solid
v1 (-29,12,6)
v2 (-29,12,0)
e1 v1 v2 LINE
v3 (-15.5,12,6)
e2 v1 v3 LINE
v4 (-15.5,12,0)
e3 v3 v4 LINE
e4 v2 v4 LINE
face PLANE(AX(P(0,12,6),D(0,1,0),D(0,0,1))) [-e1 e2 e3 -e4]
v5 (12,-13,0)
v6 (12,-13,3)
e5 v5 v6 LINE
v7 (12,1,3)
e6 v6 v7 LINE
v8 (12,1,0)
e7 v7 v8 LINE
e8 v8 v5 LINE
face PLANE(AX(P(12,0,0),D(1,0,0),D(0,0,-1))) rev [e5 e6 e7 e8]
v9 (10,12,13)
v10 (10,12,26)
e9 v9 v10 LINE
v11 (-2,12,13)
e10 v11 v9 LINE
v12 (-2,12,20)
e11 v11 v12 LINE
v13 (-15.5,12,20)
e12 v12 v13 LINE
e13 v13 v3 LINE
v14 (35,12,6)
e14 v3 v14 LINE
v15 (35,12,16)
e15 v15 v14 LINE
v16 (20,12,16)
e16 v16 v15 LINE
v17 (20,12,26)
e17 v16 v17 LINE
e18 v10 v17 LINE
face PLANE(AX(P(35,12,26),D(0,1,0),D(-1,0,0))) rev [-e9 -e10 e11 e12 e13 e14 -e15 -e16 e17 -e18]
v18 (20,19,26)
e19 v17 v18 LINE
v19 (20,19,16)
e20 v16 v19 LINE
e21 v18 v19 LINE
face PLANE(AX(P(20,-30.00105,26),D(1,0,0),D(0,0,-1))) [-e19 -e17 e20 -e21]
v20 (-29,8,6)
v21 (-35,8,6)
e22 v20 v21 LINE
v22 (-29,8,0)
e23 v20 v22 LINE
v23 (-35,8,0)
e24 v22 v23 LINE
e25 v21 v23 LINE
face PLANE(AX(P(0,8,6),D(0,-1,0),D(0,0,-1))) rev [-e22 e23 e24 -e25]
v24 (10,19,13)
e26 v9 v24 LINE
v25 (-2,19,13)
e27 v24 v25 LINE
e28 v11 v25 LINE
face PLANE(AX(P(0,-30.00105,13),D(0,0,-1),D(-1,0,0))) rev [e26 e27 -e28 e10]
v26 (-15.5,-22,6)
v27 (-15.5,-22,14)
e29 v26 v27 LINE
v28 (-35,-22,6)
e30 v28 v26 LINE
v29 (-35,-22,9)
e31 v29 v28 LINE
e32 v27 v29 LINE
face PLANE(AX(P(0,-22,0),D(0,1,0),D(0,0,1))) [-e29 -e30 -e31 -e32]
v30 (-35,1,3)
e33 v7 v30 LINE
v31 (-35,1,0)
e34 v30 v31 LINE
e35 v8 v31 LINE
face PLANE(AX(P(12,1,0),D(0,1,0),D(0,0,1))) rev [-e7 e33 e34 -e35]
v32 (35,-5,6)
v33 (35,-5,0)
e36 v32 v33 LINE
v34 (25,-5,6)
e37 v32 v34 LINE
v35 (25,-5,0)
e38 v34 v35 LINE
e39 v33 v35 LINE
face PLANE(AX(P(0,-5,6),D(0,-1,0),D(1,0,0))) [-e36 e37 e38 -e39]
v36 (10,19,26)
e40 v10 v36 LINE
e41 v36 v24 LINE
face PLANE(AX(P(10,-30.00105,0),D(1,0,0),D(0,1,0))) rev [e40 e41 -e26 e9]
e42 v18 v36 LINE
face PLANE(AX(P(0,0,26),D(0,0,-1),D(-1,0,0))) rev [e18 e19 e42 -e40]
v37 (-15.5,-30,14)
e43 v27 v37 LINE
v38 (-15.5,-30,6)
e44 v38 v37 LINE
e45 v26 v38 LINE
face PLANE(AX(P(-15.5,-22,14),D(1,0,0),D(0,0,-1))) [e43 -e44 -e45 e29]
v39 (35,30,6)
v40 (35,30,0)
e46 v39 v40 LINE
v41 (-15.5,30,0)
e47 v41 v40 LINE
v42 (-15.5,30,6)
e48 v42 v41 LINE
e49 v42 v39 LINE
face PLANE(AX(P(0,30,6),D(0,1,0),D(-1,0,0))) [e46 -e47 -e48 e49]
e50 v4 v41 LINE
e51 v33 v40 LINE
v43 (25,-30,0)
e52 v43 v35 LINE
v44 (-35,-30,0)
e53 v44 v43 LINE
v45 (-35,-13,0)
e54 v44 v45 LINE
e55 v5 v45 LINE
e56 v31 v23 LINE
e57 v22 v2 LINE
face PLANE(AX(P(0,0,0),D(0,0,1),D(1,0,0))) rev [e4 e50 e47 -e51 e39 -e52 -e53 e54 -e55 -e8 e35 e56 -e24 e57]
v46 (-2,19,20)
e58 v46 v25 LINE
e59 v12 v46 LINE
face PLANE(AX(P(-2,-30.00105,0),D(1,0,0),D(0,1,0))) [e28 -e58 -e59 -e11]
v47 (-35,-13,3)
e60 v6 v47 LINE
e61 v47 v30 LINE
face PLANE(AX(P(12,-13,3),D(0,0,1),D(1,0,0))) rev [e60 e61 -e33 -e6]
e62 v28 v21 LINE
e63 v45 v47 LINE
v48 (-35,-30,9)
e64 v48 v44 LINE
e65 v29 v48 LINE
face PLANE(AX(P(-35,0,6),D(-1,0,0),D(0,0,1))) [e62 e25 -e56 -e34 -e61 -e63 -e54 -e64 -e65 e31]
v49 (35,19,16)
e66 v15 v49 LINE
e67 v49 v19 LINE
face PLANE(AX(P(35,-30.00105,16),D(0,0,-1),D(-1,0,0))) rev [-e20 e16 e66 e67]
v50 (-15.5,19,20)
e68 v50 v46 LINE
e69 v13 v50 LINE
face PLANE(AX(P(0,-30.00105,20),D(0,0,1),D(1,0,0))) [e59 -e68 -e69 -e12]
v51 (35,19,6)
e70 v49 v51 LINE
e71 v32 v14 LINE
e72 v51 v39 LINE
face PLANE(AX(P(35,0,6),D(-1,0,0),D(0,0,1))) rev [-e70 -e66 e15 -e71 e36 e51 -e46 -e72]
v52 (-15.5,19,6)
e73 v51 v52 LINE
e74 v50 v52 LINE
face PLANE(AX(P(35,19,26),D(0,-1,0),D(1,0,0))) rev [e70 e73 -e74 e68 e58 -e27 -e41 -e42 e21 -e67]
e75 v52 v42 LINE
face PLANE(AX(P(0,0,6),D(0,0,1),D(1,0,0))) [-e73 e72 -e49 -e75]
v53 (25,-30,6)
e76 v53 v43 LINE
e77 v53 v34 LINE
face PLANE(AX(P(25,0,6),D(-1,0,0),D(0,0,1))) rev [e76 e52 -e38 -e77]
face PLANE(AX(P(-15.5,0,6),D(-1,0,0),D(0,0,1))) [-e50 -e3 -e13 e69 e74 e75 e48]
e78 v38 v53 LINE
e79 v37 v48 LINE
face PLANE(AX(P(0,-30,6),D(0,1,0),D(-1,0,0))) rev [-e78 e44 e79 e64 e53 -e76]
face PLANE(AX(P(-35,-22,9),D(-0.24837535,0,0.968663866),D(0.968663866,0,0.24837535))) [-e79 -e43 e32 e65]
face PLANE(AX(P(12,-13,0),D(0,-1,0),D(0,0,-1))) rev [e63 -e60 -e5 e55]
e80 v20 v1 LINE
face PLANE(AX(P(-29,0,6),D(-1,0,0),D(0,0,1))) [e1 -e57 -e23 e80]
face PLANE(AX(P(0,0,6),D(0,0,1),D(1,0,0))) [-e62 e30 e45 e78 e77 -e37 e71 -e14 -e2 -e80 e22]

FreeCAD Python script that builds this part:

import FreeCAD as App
import Part
import Sketcher
from FreeCAD import Vector


def add_polygon(sketch, points):
    """Adds a closed chain of lines whose ends are joined by coincident constraints."""
    first, n = sketch.GeometryCount, len(points)
    for a, b in zip(points, points[1:] + points[:1]):
        sketch.addGeometry(Part.LineSegment(App.Vector(*a, 0), App.Vector(*b, 0)), False)
    for i in range(n):
        sketch.addConstraint(Sketcher.Constraint("Coincident", first + i, 2, first + (i + 1) % n, 1))

doc = App.newDocument("Part")
body = doc.addObject("PartDesign::Body", "Body")

# Sketch on XY plane
sketch1 = body.newObject("Sketcher::SketchObject", "Sketch")
sketch1.AttachmentSupport = (doc.getObject("XY_Plane"), [""])
sketch1.MapMode = "FlatFace"
add_polygon(sketch1, [(-35, 8), (-35, -30), (25, -30), (25, -5), (35, -5), (35, 30), (-15.5, 30), (-15.5, 12), (-29, 12), (-29, 8)])  # lines 0-9
sketch1.addConstraint([
    Sketcher.Constraint("Vertical", 0),
    Sketcher.Constraint("Horizontal", 1),
    Sketcher.Constraint("Vertical", 2),
    Sketcher.Constraint("Horizontal", 3),
    Sketcher.Constraint("Vertical", 4),
    Sketcher.Constraint("Horizontal", 5),
    Sketcher.Constraint("Vertical", 6),
    Sketcher.Constraint("Horizontal", 7),
    Sketcher.Constraint("Vertical", 8),
    Sketcher.Constraint("Horizontal", 9),
    Sketcher.Constraint("Symmetric", 0, 2, 4, 2, -1, 1),
    Sketcher.Constraint("DistanceX", 1, 1, 1, 2, 60.0),
    Sketcher.Constraint("DistanceX", 3, 1, 3, 2, 10.0),
    Sketcher.Constraint("DistanceX", 9, 2, 9, 1, 6.0),
    Sketcher.Constraint("DistanceY", 0, 2, 0, 1, 38.0),
    Sketcher.Constraint("DistanceY", 2, 1, 2, 2, 25.0),
    Sketcher.Constraint("DistanceY", 4, 1, 4, 2, 35.0),
    Sketcher.Constraint("DistanceY", 6, 2, 6, 1, 18.0),
    Sketcher.Constraint("DistanceX", 5, 2, 5, 1, 50.5),
])
pad1 = body.newObject("PartDesign::Pad", "Pad")
pad1.Profile = sketch1
pad1.Length = 6

# Sketch on XZ plane
sketch2 = body.newObject("Sketcher::SketchObject", "Sketch001")
sketch2.AttachmentSupport = (doc.getObject("XZ_Plane"), [""])
sketch2.MapMode = "FlatFace"
sketch2.AttachmentOffset = App.Placement(Vector(0, 0, 30), App.Rotation())
add_polygon(sketch2, [(-35, 9), (-35, 6), (-15.5, 6), (-15.5, 14)])  # lines 0-3
sketch2.addConstraint([
    Sketcher.Constraint("Vertical", 0),
    Sketcher.Constraint("Horizontal", 1),
    Sketcher.Constraint("Vertical", 2),
    Sketcher.Constraint("DistanceY", 0, 2, 0, 1, 3.0),
    Sketcher.Constraint("DistanceY", 2, 1, 2, 2, 8.0),
    Sketcher.Constraint("DistanceX", 1, 1, 1, 2, 19.5),
    Sketcher.Constraint("DistanceX", 0, 2, -1, 1, 35.0),
    Sketcher.Constraint("DistanceY", -1, 1, 0, 2, 6.0),
])
pad2 = body.newObject("PartDesign::Pad", "Pad001")
pad2.Profile = sketch2
pad2.Length = 8
pad2.Reversed = True

# Sketch on YZ plane
sketch3 = body.newObject("Sketcher::SketchObject", "Sketch002")
sketch3.AttachmentSupport = (doc.getObject("YZ_Plane"), [""])
sketch3.MapMode = "FlatFace"
sketch3.AttachmentOffset = App.Placement(Vector(0, 0, -35), App.Rotation())
add_polygon(sketch3, [(1, 0), (-13, 0), (-13, 3), (1, 3)])  # lines 0-3
sketch3.addConstraint([
    Sketcher.Constraint("Horizontal", 0),
    Sketcher.Constraint("Vertical", 1),
    Sketcher.Constraint("Horizontal", 2),
    Sketcher.Constraint("Vertical", 3),
    Sketcher.Constraint("PointOnObject", 0, 2, -1),
    Sketcher.Constraint("DistanceX", 0, 2, 0, 1, 14.0),
    Sketcher.Constraint("DistanceY", 1, 1, 1, 2, 3.0),
    Sketcher.Constraint("DistanceX", 0, 2, -1, 1, 13.0),
])
pocket1 = body.newObject("PartDesign::Pocket", "Pocket")
pocket1.Profile = sketch3
pocket1.Length = 47
pocket1.Reversed = True

# Sketch on XY plane
sketch4 = body.newObject("Sketcher::SketchObject", "Sketch003")
sketch4.AttachmentSupport = (doc.getObject("XY_Plane"), [""])
sketch4.MapMode = "FlatFace"
sketch4.AttachmentOffset = App.Placement(Vector(0, 0, 6), App.Rotation())
add_polygon(sketch4, [(-16, 19), (-16, 12), (35, 12), (35, 19)])  # lines 0-3
sketch4.addConstraint([
    Sketcher.Constraint("Vertical", 0),
    Sketcher.Constraint("Horizontal", 1),
    Sketcher.Constraint("Vertical", 2),
    Sketcher.Constraint("Horizontal", 3),
    Sketcher.Constraint("DistanceY", 0, 2, 0, 1, 7.0),
    Sketcher.Constraint("DistanceX", 1, 1, 1, 2, 50.5),
    Sketcher.Constraint("DistanceY", -1, 1, 0, 2, 12.0),
    Sketcher.Constraint("DistanceX", -1, 1, 1, 2, 35.0),
])
pad3 = body.newObject("PartDesign::Pad", "Pad002")
pad3.Profile = sketch4
pad3.Length = 20

# Sketch on XZ plane
sketch5 = body.newObject("Sketcher::SketchObject", "Sketch004")
sketch5.AttachmentSupport = (doc.getObject("XZ_Plane"), [""])
sketch5.MapMode = "FlatFace"
sketch5.AttachmentOffset = App.Placement(Vector(0, 0, -19), App.Rotation())
add_polygon(sketch5, [(-2, 26), (10, 26), (10, 13), (-2, 13)])  # lines 0-3
sketch5.addConstraint([
    Sketcher.Constraint("Horizontal", 0),
    Sketcher.Constraint("Vertical", 1),
    Sketcher.Constraint("Horizontal", 2),
    Sketcher.Constraint("Vertical", 3),
    Sketcher.Constraint("DistanceX", 0, 1, 0, 2, 12.0),
    Sketcher.Constraint("DistanceY", 1, 2, 1, 1, 13.0),
    Sketcher.Constraint("DistanceX", -1, 1, 0, 2, 10.0),
    Sketcher.Constraint("DistanceY", -1, 1, 0, 2, 26.0),
])
pocket2 = body.newObject("PartDesign::Pocket", "Pocket001")
pocket2.Profile = sketch5
pocket2.Type = "UpToFirst"
pocket2.Reversed = True

# Sketch on XZ plane
sketch6 = body.newObject("Sketcher::SketchObject", "Sketch005")
sketch6.AttachmentSupport = (doc.getObject("XZ_Plane"), [""])
sketch6.MapMode = "FlatFace"
sketch6.AttachmentOffset = App.Placement(Vector(0, 0, -19), App.Rotation())
add_polygon(sketch6, [(-16, 20), (-16, 26), (-2, 26), (-2, 20)])  # lines 0-3
sketch6.addConstraint([
    Sketcher.Constraint("Vertical", 0),
    Sketcher.Constraint("Horizontal", 1),
    Sketcher.Constraint("Vertical", 2),
    Sketcher.Constraint("Horizontal", 3),
    Sketcher.Constraint("DistanceY", 0, 1, 0, 2, 6.0),
    Sketcher.Constraint("DistanceX", 1, 1, 1, 2, 13.5),
    Sketcher.Constraint("DistanceY", -1, 1, 0, 2, 26.0),
    Sketcher.Constraint("DistanceX", 1, 2, -1, 1, 2.0),
])
pocket3 = body.newObject("PartDesign::Pocket", "Pocket002")
pocket3.Profile = sketch6
pocket3.Type = "UpToFirst"
pocket3.Reversed = True

# Sketch on XZ plane
sketch7 = body.newObject("Sketcher::SketchObject", "Sketch006")
sketch7.AttachmentSupport = (doc.getObject("XZ_Plane"), [""])
sketch7.MapMode = "FlatFace"
sketch7.AttachmentOffset = App.Placement(Vector(0, 0, -19), App.Rotation())
add_polygon(sketch7, [(20, 16), (20, 26), (35, 26), (35, 16)])  # lines 0-3
sketch7.addConstraint([
    Sketcher.Constraint("Vertical", 0),
    Sketcher.Constraint("Horizontal", 1),
    Sketcher.Constraint("Vertical", 2),
    Sketcher.Constraint("Horizontal", 3),
    Sketcher.Constraint("DistanceX", 1, 1, 1, 2, 15.0),
    Sketcher.Constraint("DistanceY", 0, 1, 0, 2, 10.0),
    Sketcher.Constraint("DistanceX", -1, 1, 0, 2, 20.0),
    Sketcher.Constraint("DistanceY", -1, 1, 0, 2, 26.0),
])
pocket4 = body.newObject("PartDesign::Pocket", "Pocket003")
pocket4.Profile = sketch7
pocket4.Type = "UpToFirst"
pocket4.Reversed = True

doc.recompute()
